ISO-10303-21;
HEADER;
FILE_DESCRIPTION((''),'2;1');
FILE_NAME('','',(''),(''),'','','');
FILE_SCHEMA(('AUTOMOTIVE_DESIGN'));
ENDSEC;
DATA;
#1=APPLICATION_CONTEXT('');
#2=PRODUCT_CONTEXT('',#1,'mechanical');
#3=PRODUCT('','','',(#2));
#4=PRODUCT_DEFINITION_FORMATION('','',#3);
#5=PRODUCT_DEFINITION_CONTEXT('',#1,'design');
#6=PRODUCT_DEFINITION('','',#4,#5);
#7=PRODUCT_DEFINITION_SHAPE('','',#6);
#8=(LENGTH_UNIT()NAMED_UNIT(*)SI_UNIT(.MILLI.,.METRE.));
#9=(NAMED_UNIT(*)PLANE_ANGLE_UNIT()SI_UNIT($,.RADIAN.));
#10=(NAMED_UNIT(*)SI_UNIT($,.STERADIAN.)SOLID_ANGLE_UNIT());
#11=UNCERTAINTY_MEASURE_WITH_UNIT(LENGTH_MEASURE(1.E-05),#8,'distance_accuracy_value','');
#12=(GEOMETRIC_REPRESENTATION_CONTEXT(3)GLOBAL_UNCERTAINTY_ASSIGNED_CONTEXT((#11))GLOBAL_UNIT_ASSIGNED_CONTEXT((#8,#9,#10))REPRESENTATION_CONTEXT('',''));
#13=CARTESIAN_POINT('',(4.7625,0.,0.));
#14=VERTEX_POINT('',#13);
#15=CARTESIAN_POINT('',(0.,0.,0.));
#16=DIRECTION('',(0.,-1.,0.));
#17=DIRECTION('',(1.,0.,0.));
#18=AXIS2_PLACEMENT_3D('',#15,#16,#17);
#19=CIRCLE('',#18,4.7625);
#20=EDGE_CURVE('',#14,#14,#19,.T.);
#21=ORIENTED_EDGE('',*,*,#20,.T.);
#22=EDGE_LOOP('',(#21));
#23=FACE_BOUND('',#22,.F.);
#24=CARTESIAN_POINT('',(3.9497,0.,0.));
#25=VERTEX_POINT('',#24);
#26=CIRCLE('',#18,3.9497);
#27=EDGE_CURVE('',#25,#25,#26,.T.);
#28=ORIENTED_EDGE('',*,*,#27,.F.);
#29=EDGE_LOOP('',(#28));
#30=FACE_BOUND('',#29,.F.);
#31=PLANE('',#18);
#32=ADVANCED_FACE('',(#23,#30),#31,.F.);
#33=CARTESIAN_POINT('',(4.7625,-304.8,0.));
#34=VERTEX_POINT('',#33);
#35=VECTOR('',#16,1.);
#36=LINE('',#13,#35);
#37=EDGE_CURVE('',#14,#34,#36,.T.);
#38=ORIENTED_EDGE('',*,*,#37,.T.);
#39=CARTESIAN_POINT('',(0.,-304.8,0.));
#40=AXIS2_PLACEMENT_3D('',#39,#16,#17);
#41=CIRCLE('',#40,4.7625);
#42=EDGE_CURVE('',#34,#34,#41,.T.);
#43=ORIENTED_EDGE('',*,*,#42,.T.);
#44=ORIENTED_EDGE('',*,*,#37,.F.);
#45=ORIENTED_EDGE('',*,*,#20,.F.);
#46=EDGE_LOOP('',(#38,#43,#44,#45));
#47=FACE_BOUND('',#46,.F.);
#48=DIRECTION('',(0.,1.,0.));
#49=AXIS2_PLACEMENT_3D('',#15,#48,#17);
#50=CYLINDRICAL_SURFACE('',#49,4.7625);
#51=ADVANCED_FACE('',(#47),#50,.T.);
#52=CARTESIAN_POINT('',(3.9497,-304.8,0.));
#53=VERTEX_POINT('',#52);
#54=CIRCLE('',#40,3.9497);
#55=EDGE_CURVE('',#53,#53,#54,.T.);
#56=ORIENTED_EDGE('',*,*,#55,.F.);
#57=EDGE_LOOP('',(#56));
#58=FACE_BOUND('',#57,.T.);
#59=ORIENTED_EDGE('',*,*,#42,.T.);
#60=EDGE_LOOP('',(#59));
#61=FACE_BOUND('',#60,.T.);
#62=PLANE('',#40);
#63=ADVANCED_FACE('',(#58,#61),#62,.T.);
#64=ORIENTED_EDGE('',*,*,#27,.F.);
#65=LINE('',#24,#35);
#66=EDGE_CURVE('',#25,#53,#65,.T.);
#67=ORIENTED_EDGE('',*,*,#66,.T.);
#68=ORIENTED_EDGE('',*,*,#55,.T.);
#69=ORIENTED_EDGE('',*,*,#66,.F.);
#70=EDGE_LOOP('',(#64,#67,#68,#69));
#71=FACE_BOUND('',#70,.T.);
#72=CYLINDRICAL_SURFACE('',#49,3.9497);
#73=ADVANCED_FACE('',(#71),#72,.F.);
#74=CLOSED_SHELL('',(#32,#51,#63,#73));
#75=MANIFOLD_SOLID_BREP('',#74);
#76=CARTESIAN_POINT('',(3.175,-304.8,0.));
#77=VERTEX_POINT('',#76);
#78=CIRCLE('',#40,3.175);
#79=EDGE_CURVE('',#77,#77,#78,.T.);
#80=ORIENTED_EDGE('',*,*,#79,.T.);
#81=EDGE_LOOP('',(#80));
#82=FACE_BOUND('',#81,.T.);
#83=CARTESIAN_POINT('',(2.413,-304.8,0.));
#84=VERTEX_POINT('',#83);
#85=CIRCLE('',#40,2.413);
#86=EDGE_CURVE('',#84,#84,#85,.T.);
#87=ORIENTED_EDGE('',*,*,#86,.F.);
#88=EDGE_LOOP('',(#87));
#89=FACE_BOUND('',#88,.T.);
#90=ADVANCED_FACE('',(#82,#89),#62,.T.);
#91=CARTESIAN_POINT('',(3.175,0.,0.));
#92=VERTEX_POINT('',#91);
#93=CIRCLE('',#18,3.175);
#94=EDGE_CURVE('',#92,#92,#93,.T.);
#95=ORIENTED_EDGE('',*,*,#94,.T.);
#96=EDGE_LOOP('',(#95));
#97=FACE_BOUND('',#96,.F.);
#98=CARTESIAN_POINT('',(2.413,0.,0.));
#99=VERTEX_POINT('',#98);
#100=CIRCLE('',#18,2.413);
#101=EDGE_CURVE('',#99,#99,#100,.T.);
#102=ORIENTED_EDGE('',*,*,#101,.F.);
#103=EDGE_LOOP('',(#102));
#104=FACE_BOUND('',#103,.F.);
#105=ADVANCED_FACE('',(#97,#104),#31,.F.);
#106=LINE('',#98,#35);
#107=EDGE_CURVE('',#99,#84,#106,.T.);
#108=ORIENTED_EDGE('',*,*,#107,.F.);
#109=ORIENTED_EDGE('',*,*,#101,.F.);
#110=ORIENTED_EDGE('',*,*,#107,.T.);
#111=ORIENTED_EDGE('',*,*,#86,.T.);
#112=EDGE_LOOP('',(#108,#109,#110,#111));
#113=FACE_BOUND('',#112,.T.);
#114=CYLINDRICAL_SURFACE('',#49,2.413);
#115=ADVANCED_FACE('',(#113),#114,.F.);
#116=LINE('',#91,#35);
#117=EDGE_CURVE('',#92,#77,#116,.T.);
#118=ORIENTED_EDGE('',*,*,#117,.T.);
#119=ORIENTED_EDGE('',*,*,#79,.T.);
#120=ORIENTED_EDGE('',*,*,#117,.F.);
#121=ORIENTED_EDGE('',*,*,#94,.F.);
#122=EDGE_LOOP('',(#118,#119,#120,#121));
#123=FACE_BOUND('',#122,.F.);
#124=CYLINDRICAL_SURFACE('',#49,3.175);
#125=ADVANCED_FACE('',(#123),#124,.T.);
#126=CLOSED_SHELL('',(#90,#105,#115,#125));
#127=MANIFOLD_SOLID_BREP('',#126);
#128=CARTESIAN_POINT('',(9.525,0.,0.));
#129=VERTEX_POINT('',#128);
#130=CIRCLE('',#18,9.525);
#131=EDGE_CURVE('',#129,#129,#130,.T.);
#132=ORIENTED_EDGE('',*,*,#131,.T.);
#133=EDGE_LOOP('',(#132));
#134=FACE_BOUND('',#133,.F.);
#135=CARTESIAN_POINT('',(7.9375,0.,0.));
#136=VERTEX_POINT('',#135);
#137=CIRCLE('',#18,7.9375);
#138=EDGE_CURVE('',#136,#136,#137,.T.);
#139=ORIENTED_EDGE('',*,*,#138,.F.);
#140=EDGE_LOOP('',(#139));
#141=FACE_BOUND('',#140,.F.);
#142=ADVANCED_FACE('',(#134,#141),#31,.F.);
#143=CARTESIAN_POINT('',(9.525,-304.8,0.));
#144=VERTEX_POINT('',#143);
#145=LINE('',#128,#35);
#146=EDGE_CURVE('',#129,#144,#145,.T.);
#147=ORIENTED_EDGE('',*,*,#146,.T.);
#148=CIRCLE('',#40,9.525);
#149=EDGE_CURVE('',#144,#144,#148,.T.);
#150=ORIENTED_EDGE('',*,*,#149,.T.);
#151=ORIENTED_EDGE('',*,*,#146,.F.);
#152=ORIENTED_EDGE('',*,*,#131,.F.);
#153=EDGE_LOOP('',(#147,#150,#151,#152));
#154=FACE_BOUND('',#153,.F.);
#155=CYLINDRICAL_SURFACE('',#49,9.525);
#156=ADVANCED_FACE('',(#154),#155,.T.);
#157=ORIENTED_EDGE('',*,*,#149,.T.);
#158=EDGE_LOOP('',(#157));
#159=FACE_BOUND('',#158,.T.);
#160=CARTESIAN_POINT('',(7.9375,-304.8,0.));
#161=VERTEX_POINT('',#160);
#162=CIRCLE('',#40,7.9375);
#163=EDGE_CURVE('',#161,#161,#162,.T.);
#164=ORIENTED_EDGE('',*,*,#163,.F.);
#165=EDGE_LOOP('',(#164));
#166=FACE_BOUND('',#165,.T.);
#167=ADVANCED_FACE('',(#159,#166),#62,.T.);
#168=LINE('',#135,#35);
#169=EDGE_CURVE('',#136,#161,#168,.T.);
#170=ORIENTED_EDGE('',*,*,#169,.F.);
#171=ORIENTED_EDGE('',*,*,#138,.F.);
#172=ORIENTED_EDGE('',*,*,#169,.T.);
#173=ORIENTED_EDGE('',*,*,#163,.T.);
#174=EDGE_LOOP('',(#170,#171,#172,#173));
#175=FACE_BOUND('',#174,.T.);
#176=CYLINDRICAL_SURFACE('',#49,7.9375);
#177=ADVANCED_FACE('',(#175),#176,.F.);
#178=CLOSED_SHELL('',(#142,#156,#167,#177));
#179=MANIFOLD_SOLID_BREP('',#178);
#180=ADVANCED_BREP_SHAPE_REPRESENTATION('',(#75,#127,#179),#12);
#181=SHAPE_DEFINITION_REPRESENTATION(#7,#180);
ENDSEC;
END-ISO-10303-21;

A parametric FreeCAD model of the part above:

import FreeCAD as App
import Part
import Sketcher
from FreeCAD import Vector
Q = App.Units.Quantity

doc = App.newDocument("Part")
params = doc.addObject("Spreadsheet::Sheet", "Params")
for row, (alias, value) in enumerate([
    ("sketch1_diameter", "0.25 in"),
    ("sketch1_diameter2", "0.19 in"),
    ("pad1_length", "12 in"),
    ("sketch2_diameter", "0.375 in"),
    ("sketch2_diameter2", "0.311 in"),
    ("pad2_length", "12 in"),
    ("sketch3_diameter", "0.75 in"),
    ("sketch3_diameter2", "0.625 in"),
    ("pad3_length", "12 in"),
], start=1):
    params.set(f"A{row}", alias)
    params.set(f"B{row}", "=" + value)
    params.setAlias(f"B{row}", alias)

body = doc.addObject("PartDesign::Body", "Body")

# Sketch on XZ plane
sketch1 = body.newObject("Sketcher::SketchObject", "Sketch")
sketch1.AttachmentSupport = (doc.getObject("XZ_Plane"), [""])
sketch1.MapMode = "FlatFace"
sketch1.addGeometry([
    Part.Circle(Vector(0, 0, 0), Vector(0, 0, 1), 3.175),
    Part.Circle(Vector(0, 0, 0), Vector(0, 0, 1), 2.413),
], False)
sketch1.addConstraint([
    Sketcher.Constraint("Coincident", 0, 3, -1, 1),
    Sketcher.Constraint("Coincident", 1, 3, -1, 1),
    Sketcher.Constraint("Diameter", 0, Q("0.25 in")),
    Sketcher.Constraint("Diameter", 1, Q("0.19 in")),
])
sketch1.setExpression("Constraints[2]", "Params.sketch1_diameter")
sketch1.setExpression("Constraints[3]", "Params.sketch1_diameter2")
pad1 = body.newObject("PartDesign::Pad", "Pad")
pad1.Profile = sketch1
pad1.setExpression("Length", "Params.pad1_length")
body2 = doc.addObject("PartDesign::Body", "Body001")

# Sketch on XZ plane
sketch2 = body2.newObject("Sketcher::SketchObject", "Sketch001")
sketch2.AttachmentSupport = (doc.getObject("XZ_Plane001"), [""])
sketch2.MapMode = "FlatFace"
sketch2.addGeometry([
    Part.Circle(Vector(0, 0, 0), Vector(0, 0, 1), 4.7625),
    Part.Circle(Vector(0, 0, 0), Vector(0, 0, 1), 3.9497),
], False)
sketch2.addConstraint([
    Sketcher.Constraint("Coincident", 0, 3, -1, 1),
    Sketcher.Constraint("Coincident", 1, 3, -1, 1),
    Sketcher.Constraint("Diameter", 0, Q("0.375 in")),
    Sketcher.Constraint("Diameter", 1, Q("0.311 in")),
])
sketch2.setExpression("Constraints[2]", "Params.sketch2_diameter")
sketch2.setExpression("Constraints[3]", "Params.sketch2_diameter2")
pad2 = body2.newObject("PartDesign::Pad", "Pad001")
pad2.Profile = sketch2
pad2.setExpression("Length", "Params.pad2_length")
body3 = doc.addObject("PartDesign::Body", "Body002")

# Sketch on XZ plane
sketch3 = body3.newObject("Sketcher::SketchObject", "Sketch002")
sketch3.AttachmentSupport = (doc.getObject("XZ_Plane002"), [""])
sketch3.MapMode = "FlatFace"
sketch3.addGeometry([
    Part.Circle(Vector(0, 0, 0), Vector(0, 0, 1), 9.525),
    Part.Circle(Vector(0, 0, 0), Vector(0, 0, 1), 7.9375),
], False)
sketch3.addConstraint([
    Sketcher.Constraint("Coincident", 0, 3, -1, 1),
    Sketcher.Constraint("Coincident", 1, 3, -1, 1),
    Sketcher.Constraint("Diameter", 0, Q("0.75 in")),
    Sketcher.Constraint("Diameter", 1, Q("0.625 in")),
])
sketch3.setExpression("Constraints[2]", "Params.sketch3_diameter")
sketch3.setExpression("Constraints[3]", "Params.sketch3_diameter2")
pad3 = body3.newObject("PartDesign::Pad", "Pad002")
pad3.Profile = sketch3
pad3.setExpression("Length", "Params.pad3_length")

doc.recompute()
